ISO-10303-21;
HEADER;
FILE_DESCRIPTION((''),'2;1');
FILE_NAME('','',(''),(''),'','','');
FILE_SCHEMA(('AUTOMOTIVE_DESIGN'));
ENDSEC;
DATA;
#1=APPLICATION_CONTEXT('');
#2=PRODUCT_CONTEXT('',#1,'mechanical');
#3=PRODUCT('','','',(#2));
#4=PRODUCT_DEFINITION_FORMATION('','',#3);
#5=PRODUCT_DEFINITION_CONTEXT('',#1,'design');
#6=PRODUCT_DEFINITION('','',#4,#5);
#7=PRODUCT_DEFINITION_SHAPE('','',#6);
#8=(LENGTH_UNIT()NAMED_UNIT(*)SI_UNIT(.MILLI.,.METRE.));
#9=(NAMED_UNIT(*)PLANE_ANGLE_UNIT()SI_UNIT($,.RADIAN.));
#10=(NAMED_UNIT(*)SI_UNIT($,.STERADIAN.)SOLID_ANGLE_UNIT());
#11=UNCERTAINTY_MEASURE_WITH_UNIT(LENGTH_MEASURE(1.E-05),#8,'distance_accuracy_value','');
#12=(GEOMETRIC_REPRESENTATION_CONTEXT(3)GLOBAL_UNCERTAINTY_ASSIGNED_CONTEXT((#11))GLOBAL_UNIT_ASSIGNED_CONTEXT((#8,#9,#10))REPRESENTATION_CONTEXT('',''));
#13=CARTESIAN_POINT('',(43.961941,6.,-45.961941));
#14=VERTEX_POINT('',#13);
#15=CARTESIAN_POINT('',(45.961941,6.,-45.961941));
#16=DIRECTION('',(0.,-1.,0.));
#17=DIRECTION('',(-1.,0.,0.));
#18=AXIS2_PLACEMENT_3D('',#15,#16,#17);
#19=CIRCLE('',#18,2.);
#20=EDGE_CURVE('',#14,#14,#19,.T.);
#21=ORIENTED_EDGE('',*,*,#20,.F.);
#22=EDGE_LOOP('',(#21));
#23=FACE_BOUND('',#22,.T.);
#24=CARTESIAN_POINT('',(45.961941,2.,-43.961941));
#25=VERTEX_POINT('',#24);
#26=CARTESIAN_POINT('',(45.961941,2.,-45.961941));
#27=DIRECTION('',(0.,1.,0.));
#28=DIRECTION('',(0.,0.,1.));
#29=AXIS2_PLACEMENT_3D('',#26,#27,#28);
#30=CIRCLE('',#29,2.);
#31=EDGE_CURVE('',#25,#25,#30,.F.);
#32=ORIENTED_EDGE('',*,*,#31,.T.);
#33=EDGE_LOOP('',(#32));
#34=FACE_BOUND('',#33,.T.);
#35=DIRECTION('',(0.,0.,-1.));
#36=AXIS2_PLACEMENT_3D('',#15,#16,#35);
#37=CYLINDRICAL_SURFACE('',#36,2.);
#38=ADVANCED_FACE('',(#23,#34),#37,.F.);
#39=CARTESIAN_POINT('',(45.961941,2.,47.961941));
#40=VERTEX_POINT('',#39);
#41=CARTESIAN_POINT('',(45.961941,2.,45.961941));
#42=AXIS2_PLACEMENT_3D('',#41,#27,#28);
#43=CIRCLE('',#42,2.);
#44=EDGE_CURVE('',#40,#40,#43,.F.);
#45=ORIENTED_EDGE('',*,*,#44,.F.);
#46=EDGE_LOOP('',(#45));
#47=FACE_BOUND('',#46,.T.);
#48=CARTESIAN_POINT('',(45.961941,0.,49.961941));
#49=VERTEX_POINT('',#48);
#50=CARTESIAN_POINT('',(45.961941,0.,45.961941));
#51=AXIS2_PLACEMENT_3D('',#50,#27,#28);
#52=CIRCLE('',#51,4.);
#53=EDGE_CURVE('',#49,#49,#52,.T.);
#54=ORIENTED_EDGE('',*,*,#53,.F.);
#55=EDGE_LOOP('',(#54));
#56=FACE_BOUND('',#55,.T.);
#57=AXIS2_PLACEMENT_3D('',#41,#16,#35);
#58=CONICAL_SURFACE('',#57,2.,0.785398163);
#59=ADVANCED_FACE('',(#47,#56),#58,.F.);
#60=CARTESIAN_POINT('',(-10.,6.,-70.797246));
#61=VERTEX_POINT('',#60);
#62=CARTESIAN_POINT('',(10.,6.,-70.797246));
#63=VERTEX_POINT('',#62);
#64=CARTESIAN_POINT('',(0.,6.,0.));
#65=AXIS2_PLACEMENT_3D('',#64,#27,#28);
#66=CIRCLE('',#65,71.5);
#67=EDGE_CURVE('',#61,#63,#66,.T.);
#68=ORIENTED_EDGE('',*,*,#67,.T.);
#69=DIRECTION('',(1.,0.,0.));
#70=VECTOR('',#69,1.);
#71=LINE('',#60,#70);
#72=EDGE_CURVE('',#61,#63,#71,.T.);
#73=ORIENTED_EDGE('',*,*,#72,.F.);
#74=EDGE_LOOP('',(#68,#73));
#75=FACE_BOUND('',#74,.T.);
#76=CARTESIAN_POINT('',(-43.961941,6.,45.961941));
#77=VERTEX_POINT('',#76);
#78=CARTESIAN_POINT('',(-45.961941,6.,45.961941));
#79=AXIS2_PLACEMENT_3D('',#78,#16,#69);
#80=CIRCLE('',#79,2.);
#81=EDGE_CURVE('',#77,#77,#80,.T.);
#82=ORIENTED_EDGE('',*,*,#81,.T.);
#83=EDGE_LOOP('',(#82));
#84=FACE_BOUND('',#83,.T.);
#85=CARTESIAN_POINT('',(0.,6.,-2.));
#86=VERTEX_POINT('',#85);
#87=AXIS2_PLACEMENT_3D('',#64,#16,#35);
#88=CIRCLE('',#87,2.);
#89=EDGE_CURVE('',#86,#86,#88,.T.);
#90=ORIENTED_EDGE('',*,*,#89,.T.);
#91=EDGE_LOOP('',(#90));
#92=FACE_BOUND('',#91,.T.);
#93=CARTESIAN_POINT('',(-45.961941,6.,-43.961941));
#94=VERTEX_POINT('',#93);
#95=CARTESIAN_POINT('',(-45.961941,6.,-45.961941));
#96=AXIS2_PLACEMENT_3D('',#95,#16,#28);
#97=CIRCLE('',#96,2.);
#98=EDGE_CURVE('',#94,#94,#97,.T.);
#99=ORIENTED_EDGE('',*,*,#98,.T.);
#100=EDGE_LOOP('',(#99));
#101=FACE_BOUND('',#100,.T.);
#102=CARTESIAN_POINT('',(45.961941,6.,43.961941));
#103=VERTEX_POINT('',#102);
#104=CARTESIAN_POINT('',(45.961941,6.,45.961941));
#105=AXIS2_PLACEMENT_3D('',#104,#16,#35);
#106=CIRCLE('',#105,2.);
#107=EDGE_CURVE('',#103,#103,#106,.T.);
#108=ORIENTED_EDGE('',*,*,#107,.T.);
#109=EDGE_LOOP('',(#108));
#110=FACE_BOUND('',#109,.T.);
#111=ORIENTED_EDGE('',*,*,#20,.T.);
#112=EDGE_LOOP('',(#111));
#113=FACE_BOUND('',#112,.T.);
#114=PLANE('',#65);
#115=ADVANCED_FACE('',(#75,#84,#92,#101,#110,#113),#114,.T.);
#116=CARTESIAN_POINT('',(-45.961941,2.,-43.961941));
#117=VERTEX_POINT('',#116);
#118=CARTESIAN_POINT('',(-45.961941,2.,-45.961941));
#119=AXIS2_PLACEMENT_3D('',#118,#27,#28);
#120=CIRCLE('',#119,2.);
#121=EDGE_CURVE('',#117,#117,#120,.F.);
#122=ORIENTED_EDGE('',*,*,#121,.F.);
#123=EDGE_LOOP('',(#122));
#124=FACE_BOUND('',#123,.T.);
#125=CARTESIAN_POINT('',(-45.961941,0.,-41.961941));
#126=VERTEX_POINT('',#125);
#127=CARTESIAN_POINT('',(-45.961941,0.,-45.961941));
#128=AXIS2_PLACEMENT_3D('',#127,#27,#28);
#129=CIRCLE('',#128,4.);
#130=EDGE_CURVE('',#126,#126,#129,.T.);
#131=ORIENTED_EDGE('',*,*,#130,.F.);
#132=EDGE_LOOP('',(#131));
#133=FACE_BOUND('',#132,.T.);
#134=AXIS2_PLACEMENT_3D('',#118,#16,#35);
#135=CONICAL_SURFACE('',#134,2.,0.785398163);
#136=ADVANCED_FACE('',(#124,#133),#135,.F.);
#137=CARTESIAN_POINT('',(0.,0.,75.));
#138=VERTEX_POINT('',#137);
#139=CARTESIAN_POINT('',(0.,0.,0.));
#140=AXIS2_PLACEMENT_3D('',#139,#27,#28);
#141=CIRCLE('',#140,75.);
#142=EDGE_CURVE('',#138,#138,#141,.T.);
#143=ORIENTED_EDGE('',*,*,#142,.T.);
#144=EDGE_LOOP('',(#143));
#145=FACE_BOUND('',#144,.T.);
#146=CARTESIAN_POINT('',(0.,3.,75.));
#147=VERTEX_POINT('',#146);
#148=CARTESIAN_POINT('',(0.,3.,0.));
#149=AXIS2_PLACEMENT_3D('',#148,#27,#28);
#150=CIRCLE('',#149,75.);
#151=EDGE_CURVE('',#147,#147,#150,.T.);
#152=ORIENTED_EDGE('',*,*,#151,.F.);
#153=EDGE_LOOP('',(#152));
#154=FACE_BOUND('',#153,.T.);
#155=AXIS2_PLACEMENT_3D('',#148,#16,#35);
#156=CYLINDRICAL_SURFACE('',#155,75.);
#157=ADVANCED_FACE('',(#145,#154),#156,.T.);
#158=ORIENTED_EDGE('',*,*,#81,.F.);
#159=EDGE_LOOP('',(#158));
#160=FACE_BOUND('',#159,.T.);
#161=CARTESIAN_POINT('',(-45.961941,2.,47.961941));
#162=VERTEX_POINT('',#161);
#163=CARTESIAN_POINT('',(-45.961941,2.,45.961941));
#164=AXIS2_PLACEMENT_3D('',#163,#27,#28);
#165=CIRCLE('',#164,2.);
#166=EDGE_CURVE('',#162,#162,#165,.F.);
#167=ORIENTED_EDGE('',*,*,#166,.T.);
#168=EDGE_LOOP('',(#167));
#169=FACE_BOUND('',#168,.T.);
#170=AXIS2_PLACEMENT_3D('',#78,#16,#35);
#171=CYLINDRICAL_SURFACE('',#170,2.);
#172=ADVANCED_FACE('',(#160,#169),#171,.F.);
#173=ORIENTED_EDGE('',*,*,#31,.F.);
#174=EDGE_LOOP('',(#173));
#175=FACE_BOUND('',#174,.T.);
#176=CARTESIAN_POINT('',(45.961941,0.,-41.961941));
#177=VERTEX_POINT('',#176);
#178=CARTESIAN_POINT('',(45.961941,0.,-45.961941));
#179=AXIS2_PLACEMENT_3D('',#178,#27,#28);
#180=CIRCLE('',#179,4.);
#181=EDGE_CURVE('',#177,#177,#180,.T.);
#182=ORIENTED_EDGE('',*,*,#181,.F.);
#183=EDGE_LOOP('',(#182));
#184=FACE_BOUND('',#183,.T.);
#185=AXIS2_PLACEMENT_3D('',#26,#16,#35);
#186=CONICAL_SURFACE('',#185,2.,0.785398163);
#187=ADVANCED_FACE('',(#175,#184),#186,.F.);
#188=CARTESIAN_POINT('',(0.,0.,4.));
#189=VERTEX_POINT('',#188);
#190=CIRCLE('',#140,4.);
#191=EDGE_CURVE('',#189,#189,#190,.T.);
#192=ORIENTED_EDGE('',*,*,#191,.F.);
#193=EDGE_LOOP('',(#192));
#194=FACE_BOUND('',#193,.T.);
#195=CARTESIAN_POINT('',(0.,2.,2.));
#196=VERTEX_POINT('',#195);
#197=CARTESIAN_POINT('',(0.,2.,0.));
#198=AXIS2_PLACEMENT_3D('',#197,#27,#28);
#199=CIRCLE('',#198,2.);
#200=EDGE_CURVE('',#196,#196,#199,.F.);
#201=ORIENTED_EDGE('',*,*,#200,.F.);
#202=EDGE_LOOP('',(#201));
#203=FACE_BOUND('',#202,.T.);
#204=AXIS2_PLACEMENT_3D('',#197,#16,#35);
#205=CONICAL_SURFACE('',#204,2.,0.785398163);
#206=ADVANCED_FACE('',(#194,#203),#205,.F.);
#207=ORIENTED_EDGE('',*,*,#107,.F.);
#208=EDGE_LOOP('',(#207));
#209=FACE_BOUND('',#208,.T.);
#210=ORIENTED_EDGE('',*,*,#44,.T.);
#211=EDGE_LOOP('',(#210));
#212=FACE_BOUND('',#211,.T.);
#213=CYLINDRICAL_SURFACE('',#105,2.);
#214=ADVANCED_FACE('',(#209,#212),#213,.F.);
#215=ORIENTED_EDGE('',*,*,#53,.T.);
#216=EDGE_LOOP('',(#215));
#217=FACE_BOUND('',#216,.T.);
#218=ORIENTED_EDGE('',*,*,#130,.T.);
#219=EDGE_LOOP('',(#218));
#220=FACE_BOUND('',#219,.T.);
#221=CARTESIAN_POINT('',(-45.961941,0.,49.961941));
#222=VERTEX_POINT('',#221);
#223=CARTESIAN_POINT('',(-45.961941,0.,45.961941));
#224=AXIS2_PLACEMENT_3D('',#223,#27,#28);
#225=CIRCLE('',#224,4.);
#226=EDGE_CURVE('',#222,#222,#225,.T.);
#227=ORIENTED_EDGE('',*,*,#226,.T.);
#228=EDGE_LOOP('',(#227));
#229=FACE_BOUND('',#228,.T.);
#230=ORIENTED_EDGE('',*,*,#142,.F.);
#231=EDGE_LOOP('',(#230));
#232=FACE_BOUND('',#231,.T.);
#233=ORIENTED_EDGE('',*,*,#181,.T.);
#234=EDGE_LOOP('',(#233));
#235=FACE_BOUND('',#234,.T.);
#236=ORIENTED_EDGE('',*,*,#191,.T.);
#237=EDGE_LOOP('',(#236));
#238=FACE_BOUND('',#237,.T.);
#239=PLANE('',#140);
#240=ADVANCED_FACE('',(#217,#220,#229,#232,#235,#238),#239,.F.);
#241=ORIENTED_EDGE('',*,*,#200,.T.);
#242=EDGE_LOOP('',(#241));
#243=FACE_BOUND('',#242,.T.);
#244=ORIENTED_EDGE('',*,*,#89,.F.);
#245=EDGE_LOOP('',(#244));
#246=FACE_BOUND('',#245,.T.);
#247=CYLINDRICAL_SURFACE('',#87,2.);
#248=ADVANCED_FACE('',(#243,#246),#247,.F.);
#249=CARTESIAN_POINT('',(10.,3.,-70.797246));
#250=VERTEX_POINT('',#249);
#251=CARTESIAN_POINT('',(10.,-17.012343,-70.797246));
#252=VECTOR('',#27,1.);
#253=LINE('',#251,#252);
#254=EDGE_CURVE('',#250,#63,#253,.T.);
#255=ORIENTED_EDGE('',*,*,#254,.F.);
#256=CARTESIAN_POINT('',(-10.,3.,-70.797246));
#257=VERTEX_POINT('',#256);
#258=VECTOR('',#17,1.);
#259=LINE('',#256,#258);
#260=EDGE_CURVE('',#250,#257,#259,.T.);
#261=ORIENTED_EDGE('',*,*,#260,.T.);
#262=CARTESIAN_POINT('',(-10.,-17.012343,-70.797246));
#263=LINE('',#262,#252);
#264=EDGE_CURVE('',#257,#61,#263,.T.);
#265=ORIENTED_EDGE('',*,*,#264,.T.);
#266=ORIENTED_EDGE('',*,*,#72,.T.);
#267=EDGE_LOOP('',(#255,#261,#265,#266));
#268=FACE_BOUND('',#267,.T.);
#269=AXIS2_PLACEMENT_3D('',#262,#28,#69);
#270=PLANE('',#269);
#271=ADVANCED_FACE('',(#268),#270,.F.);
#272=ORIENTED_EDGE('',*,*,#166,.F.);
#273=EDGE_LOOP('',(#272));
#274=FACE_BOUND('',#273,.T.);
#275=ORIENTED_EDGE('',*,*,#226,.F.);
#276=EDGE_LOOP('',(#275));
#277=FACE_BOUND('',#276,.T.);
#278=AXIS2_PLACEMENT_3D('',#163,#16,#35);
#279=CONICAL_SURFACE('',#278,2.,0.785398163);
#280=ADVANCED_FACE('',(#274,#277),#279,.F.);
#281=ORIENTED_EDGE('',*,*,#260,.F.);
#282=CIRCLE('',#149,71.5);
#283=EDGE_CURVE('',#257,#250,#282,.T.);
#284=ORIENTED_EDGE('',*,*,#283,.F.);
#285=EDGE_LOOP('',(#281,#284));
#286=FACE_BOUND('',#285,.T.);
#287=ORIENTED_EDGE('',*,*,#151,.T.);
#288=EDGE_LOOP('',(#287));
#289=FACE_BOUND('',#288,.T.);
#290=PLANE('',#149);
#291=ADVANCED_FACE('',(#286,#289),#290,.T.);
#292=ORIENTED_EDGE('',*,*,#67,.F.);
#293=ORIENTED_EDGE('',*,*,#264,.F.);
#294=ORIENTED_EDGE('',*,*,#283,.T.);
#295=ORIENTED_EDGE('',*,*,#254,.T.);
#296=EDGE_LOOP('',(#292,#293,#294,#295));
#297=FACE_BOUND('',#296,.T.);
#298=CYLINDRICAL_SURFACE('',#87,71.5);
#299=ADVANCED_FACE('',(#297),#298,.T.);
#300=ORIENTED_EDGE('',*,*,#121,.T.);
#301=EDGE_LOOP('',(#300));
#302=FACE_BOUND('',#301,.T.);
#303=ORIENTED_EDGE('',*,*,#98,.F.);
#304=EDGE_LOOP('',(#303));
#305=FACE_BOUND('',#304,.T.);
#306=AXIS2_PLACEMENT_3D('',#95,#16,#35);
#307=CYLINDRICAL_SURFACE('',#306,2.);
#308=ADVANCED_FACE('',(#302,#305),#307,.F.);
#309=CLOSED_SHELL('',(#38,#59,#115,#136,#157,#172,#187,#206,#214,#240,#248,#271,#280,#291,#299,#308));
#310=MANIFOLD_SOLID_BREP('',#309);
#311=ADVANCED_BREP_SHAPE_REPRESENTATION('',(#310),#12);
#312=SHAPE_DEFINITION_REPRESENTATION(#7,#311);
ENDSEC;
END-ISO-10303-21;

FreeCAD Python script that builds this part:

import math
import FreeCAD as App
import Part
import Sketcher
from FreeCAD import Vector
Q = App.Units.Quantity


def edges_at(feature, points):
    """Names of the edges that pass closest to the given points."""
    edges = feature.Shape.Edges
    near = lambda p: min(range(len(edges)), key=lambda i: edges[i].distToShape(Part.Vertex(*p))[0])
    return sorted({f"Edge{near(p) + 1}" for p in points})

doc = App.newDocument("Part")
params = doc.addObject("Spreadsheet::Sheet", "Params")
for row, (alias, value) in enumerate([
    ("sketch1_diameter", "150 mm"),
    ("pad1_length", "3 mm"),
    ("sketch2_diameter", "143 mm"),
    ("pad2_length", "3 mm"),
    ("sketch3_diameter", "4 mm"),
    ("chamfer_size", "2 mm"),
    ("chamfer2_size", "2 mm"),
    ("sketch4_diameter", "4 mm"),
    ("chamfer3_size", "2 mm"),
    ("sketch5_radius", "71.5 mm"),
    ("sketch5_width", "20 mm"),
    ("pocket3_length", "3 mm"),
], start=1):
    params.set(f"A{row}", alias)
    params.set(f"B{row}", "=" + value)
    params.setAlias(f"B{row}", alias)

body = doc.addObject("PartDesign::Body", "Body")

# Sketch on XZ plane
sketch1 = body.newObject("Sketcher::SketchObject", "Sketch")
sketch1.AttachmentSupport = (doc.getObject("XZ_Plane"), [""])
sketch1.MapMode = "FlatFace"
sketch1.addGeometry(Part.Circle(Vector(0, 0, 0), Vector(0, 0, 1), 75), False)
sketch1.addConstraint([
    Sketcher.Constraint("Coincident", 0, 3, -1, 1),
    Sketcher.Constraint("Diameter", 0, Q("150 mm")),
])
sketch1.setExpression("Constraints[1]", "Params.sketch1_diameter")
pad1 = body.newObject("PartDesign::Pad", "Pad")
pad1.Profile = sketch1
pad1.setExpression("Length", "Params.pad1_length")
pad1.Reversed = True

# Sketch on XZ plane
sketch2 = body.newObject("Sketcher::SketchObject", "Sketch001")
sketch2.AttachmentSupport = (doc.getObject("XZ_Plane"), [""])
sketch2.MapMode = "FlatFace"
sketch2.AttachmentOffset = App.Placement(Vector(0, 0, -3), App.Rotation())
sketch2.addGeometry(Part.Circle(Vector(0, 0, 0), Vector(0, 0, 1), 71.5), False)
sketch2.addConstraint([
    Sketcher.Constraint("Coincident", 0, 3, -1, 1),
    Sketcher.Constraint("Diameter", 0, Q("143 mm")),
])
sketch2.setExpression("Constraints[1]", "Params.sketch2_diameter")
pad2 = body.newObject("PartDesign::Pad", "Pad001")
pad2.Profile = sketch2
pad2.setExpression("Length", "Params.pad2_length")
pad2.Reversed = True

# Sketch on XZ plane
sketch3 = body.newObject("Sketcher::SketchObject", "Sketch002")
sketch3.AttachmentSupport = (doc.getObject("XZ_Plane"), [""])
sketch3.MapMode = "FlatFace"
sketch3.addGeometry(Part.Circle(Vector(45.961941, 45.961941, 0), Vector(0, 0, 1), 2), False)
sketch3.addConstraint([
    Sketcher.Constraint("Diameter", 0, Q("4 mm")),
    Sketcher.Constraint("DistanceX", -1, 1, 0, 3, Q("45.961941 mm")),
    Sketcher.Constraint("DistanceY", -1, 1, 0, 3, Q("45.961941 mm")),
])
sketch3.setExpression("Constraints[0]", "Params.sketch3_diameter")
pocket1 = body.newObject("PartDesign::Pocket", "Pocket")
pocket1.Profile = sketch3
pocket1.Type = "ThroughAll"
doc.recompute()

chamfer = body.newObject("PartDesign::Chamfer", "Chamfer")
chamfer.Base = (pocket1, edges_at(pocket1, [(43.962, 0, 45.962)]))
chamfer.setExpression("Size", "Params.chamfer_size")
doc.recompute()

polarpattern = body.newObject("PartDesign::PolarPattern", "PolarPattern")
polarpattern.Originals = [pocket1]
polarpattern.Axis = (doc.getObject("Y_Axis"), [""])
polarpattern.Angle = 360
polarpattern.Occurrences = 4
body.Tip = polarpattern
doc.recompute()

chamfer2 = body.newObject("PartDesign::Chamfer", "Chamfer001")
chamfer2.Base = (polarpattern, edges_at(polarpattern, [(45.962, 0, -43.962), (-43.962, 0, -45.962), (-45.962, 0, 43.962)]))
chamfer2.setExpression("Size", "Params.chamfer2_size")

# Sketch on XZ plane
sketch4 = body.newObject("Sketcher::SketchObject", "Sketch003")
sketch4.AttachmentSupport = (doc.getObject("XZ_Plane"), [""])
sketch4.MapMode = "FlatFace"
sketch4.addGeometry(Part.Circle(Vector(0, 0, 0), Vector(0, 0, 1), 2), False)
sketch4.addConstraint([
    Sketcher.Constraint("Coincident", 0, 3, -1, 1),
    Sketcher.Constraint("Diameter", 0, Q("4 mm")),
])
sketch4.setExpression("Constraints[1]", "Params.sketch4_diameter")
pocket2 = body.newObject("PartDesign::Pocket", "Pocket001")
pocket2.Profile = sketch4
pocket2.Type = "ThroughAll"
doc.recompute()

chamfer3 = body.newObject("PartDesign::Chamfer", "Chamfer002")
chamfer3.Base = (pocket2, edges_at(pocket2, [(-2, 0, 0)]))
chamfer3.setExpression("Size", "Params.chamfer3_size")

# Sketch on XZ plane
sketch5 = body.newObject("Sketcher::SketchObject", "Sketch004")
sketch5.AttachmentSupport = (doc.getObject("XZ_Plane"), [""])
sketch5.MapMode = "FlatFace"
sketch5.AttachmentOffset = App.Placement(Vector(0, 0, -6), App.Rotation())
sketch5.addGeometry([
    Part.LineSegment(Vector(-10, -70.797246, 0), Vector(10, -70.797246, 0)),
    Part.ArcOfCircle(Part.Circle(Vector(0, 0, 0), Vector(0, 0, 1), 71.5), math.radians(-98.039753), math.radians(-81.960247)),
], False)
sketch5.addConstraint([
    Sketcher.Constraint("Coincident", 0, 1, 1, 1),
    Sketcher.Constraint("Coincident", 1, 2, 0, 2),
    Sketcher.Constraint("Horizontal", 0),
    Sketcher.Constraint("Coincident", 1, 3, -1, 1),
    Sketcher.Constraint("Radius", 1, Q("71.5 mm")),
    Sketcher.Constraint("DistanceX", 0, 1, 0, 2, Q("20 mm")),
])
sketch5.setExpression("Constraints[4]", "Params.sketch5_radius")
sketch5.setExpression("Constraints[5]", "Params.sketch5_width")
pocket3 = body.newObject("PartDesign::Pocket", "Pocket002")
pocket3.Profile = sketch5
pocket3.setExpression("Length", "Params.pocket3_length")
pocket3.Reversed = True

doc.recompute()
